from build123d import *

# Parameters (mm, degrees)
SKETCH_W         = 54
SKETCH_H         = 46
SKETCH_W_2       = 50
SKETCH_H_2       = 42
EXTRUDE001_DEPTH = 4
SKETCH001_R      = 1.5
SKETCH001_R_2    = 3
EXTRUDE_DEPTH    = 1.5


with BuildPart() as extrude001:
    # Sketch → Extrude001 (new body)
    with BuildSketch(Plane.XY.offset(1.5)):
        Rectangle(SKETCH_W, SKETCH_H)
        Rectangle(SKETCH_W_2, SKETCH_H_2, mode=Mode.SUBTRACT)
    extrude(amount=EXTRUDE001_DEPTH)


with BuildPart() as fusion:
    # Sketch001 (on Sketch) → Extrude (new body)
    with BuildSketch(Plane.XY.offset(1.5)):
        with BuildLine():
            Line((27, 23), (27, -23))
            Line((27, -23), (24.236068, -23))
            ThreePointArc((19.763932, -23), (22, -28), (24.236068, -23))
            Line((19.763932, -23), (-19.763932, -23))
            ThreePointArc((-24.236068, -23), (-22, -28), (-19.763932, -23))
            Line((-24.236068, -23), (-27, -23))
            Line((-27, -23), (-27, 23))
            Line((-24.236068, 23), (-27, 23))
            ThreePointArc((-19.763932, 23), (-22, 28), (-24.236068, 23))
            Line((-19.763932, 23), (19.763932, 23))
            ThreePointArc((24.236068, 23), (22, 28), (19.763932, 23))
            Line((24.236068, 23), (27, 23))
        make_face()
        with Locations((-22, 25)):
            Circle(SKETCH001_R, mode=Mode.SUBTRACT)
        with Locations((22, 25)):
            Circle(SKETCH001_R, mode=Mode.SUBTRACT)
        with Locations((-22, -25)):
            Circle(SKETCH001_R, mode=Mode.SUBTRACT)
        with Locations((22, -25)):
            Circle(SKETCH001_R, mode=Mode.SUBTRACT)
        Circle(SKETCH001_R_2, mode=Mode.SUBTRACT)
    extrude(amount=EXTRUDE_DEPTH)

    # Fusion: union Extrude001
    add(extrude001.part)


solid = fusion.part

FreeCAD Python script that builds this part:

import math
import FreeCAD as App
import Part
import Sketcher
Q = App.Units.Quantity

doc = App.newDocument("Part")
params = doc.addObject("Spreadsheet::Sheet", "Params")
for row, (alias, value) in enumerate([
    ("sketch1_width", "54 mm"),
    ("sketch1_width2", "50 mm"),
    ("sketch1_height", "46 mm"),
    ("sketch1_height2", "42 mm"),
    ("pad1_length", "4 mm"),
    ("sketch2_diameter", "3 mm"),
    ("sketch2_diameter2", "6 mm"),
    ("sketch2_height", "46 mm"),
    ("pad2_length", "1.5 mm"),
], start=1):
    params.set(f"A{row}", alias)
    params.set(f"B{row}", "=" + value)
    params.setAlias(f"B{row}", alias)

body = doc.addObject("PartDesign::Body", "Body")

# Sketch on XY plane
sketch1 = body.newObject("Sketcher::SketchObject", "Sketch")
sketch1.AttachmentSupport = (doc.getObject("XY_Plane"), [""])
sketch1.MapMode = "FlatFace"
sketch1.AttachmentOffset = App.Placement(App.Vector(0, 0, 1.5), App.Rotation())
sketch1.addGeometry([
    Part.LineSegment(App.Vector(-27, 23, 0), App.Vector(-27, -23, 0)),  # 0
    Part.LineSegment(App.Vector(-27, -23, 0), App.Vector(27, -23, 0)),  # 1
    Part.LineSegment(App.Vector(27, -23, 0), App.Vector(27, 23, 0)),  # 2
    Part.LineSegment(App.Vector(27, 23, 0), App.Vector(-27, 23, 0)),  # 3
    Part.LineSegment(App.Vector(25, -21, 0), App.Vector(-25, -21, 0)),  # 4
    Part.LineSegment(App.Vector(-25, -21, 0), App.Vector(-25, 21, 0)),  # 5
    Part.LineSegment(App.Vector(-25, 21, 0), App.Vector(25, 21, 0)),  # 6
    Part.LineSegment(App.Vector(25, 21, 0), App.Vector(25, -21, 0)),  # 7
], False)
sketch1.addConstraint([
    Sketcher.Constraint("Coincident", 0, 2, 1, 1),
    Sketcher.Constraint("Coincident", 1, 2, 2, 1),
    Sketcher.Constraint("Coincident", 2, 2, 3, 1),
    Sketcher.Constraint("Coincident", 3, 2, 0, 1),
    Sketcher.Constraint("Coincident", 4, 2, 5, 1),
    Sketcher.Constraint("Coincident", 5, 2, 6, 1),
    Sketcher.Constraint("Coincident", 6, 2, 7, 1),
    Sketcher.Constraint("Coincident", 7, 2, 4, 1),
    Sketcher.Constraint("Vertical", 0),
    Sketcher.Constraint("Horizontal", 1),
    Sketcher.Constraint("Vertical", 2),
    Sketcher.Constraint("Horizontal", 3),
    Sketcher.Constraint("Horizontal", 4),
    Sketcher.Constraint("Vertical", 5),
    Sketcher.Constraint("Horizontal", 6),
    Sketcher.Constraint("Vertical", 7),
    Sketcher.Constraint("Symmetric", 0, 2, 2, 2, -1, 1),
    Sketcher.Constraint("Symmetric", 4, 2, 6, 2, -1, 1),
    Sketcher.Constraint("DistanceX", 1, 1, 1, 2, Q("54 mm")),
    Sketcher.Constraint("DistanceX", 4, 2, 4, 1, Q("50 mm")),
    Sketcher.Constraint("DistanceY", 0, 2, 0, 1, Q("46 mm")),
    Sketcher.Constraint("DistanceY", 5, 1, 5, 2, Q("42 mm")),
])
sketch1.setExpression("Constraints[18]", "Params.sketch1_width")
sketch1.setExpression("Constraints[19]", "Params.sketch1_width2")
sketch1.setExpression("Constraints[20]", "Params.sketch1_height")
sketch1.setExpression("Constraints[21]", "Params.sketch1_height2")
pad1 = body.newObject("PartDesign::Pad", "Pad")
pad1.Profile = sketch1
pad1.setExpression("Length", "Params.pad1_length")
body2 = doc.addObject("PartDesign::Body", "Body001")

# Sketch on XY plane
sketch2 = body2.newObject("Sketcher::SketchObject", "Sketch001")
sketch2.AttachmentSupport = (doc.getObject("XY_Plane001"), [""])
sketch2.MapMode = "FlatFace"
sketch2.AttachmentOffset = App.Placement(App.Vector(0, 0, 1.5), App.Rotation())
sketch2.addGeometry([
    Part.LineSegment(App.Vector(27, -23, 0), App.Vector(27, 23, 0)),  # 0
    Part.LineSegment(App.Vector(27, 23, 0), App.Vector(24.2, 23, 0)),  # 1
    Part.ArcOfCircle(Part.Circle(App.Vector(22, 25, 0), App.Vector(0, 0, 1), 3), math.radians(-42), math.radians(222)),  # 2
    Part.LineSegment(App.Vector(19.8, 23, 0), App.Vector(-19.8, 23, 0)),  # 3
    Part.ArcOfCircle(Part.Circle(App.Vector(-22, 25, 0), App.Vector(0, 0, 1), 3), math.radians(-42), math.radians(222)),  # 4
    Part.LineSegment(App.Vector(-24.2, 23, 0), App.Vector(-27, 23, 0)),  # 5
    Part.LineSegment(App.Vector(-27, 23, 0), App.Vector(-27, -23, 0)),  # 6
    Part.LineSegment(App.Vector(-27, -23, 0), App.Vector(-24.2, -23, 0)),  # 7
    Part.ArcOfCircle(Part.Circle(App.Vector(-22, -25, 0), App.Vector(0, 0, 1), 3), math.radians(138), math.radians(402)),  # 8
    Part.LineSegment(App.Vector(-19.8, -23, 0), App.Vector(19.8, -23, 0)),  # 9
    Part.ArcOfCircle(Part.Circle(App.Vector(22, -25, 0), App.Vector(0, 0, 1), 3), math.radians(138), math.radians(402)),  # 10
    Part.LineSegment(App.Vector(24.2, -23, 0), App.Vector(27, -23, 0)),  # 11
    Part.Circle(App.Vector(22, -25, 0), App.Vector(0, 0, 1), 1.5),  # 12
    Part.Circle(App.Vector(-22, -25, 0), App.Vector(0, 0, 1), 1.5),  # 13
    Part.Circle(App.Vector(22, 25, 0), App.Vector(0, 0, 1), 1.5),  # 14
    Part.Circle(App.Vector(0, 0, 0), App.Vector(0, 0, 1), 3),  # 15
    Part.Circle(App.Vector(-22, 25, 0), App.Vector(0, 0, 1), 1.5),  # 16
], False)
sketch2.addConstraint([
    Sketcher.Constraint("Coincident", 0, 2, 1, 1),
    Sketcher.Constraint("Coincident", 1, 2, 2, 1),
    Sketcher.Constraint("Coincident", 2, 2, 3, 1),
    Sketcher.Constraint("Coincident", 3, 2, 4, 1),
    Sketcher.Constraint("Coincident", 4, 2, 5, 1),
    Sketcher.Constraint("Coincident", 5, 2, 6, 1),
    Sketcher.Constraint("Coincident", 6, 2, 7, 1),
    Sketcher.Constraint("Coincident", 7, 2, 8, 1),
    Sketcher.Constraint("Coincident", 8, 2, 9, 1),
    Sketcher.Constraint("Coincident", 9, 2, 10, 1),
    Sketcher.Constraint("Coincident", 10, 2, 11, 1),
    Sketcher.Constraint("Coincident", 11, 2, 0, 1),
    Sketcher.Constraint("Vertical", 0),
    Sketcher.Constraint("Horizontal", 1),
    Sketcher.Constraint("Horizontal", 3),
    Sketcher.Constraint("Horizontal", 5),
    Sketcher.Constraint("Vertical", 6),
    Sketcher.Constraint("Horizontal", 7),
    Sketcher.Constraint("Horizontal", 9),
    Sketcher.Constraint("Horizontal", 11),
    Sketcher.Constraint("Coincident", 15, 3, -1, 1),
    Sketcher.Constraint("Coincident", 12, 3, 10, 3),
    Sketcher.Constraint("Coincident", 13, 3, 8, 3),
    Sketcher.Constraint("Coincident", 14, 3, 2, 3),
    Sketcher.Constraint("Coincident", 16, 3, 4, 3),
    Sketcher.Constraint("Equal", 2, 4),
    Sketcher.Constraint("Equal", 4, 8),
    Sketcher.Constraint("Equal", 8, 10),
    Sketcher.Constraint("Equal", 12, 13),
    Sketcher.Constraint("Equal", 13, 14),
    Sketcher.Constraint("Equal", 10, 15),
    Sketcher.Constraint("Equal", 14, 16),
    Sketcher.Constraint("Symmetric", 2, 3, 8, 3, -1, 1),
    Sketcher.Constraint("Symmetric", 4, 3, 10, 3, -1, 1),
    Sketcher.Constraint("Symmetric", 0, 2, 6, 2, -1, 1),
    Sketcher.Constraint("Symmetric", 2, 3, 4, 3, -2),
    Sketcher.Constraint("Horizontal", 1, 2, 2, 2),
    Sketcher.Constraint("Horizontal", 3, 2, 4, 2),
    Sketcher.Constraint("Horizontal", 7, 2, 8, 2),
    Sketcher.Constraint("Horizontal", 9, 2, 10, 2),
    Sketcher.Constraint("Diameter", 12, Q("3 mm")),
    Sketcher.Constraint("Diameter", 15, Q("6 mm")),
    Sketcher.Constraint("DistanceY", 0, 1, 0, 2, Q("46 mm")),
    Sketcher.Constraint("DistanceX", -1, 1, 2, 3, Q("22 mm")),
    Sketcher.Constraint("DistanceY", -1, 1, 2, 3, Q("25 mm")),
    Sketcher.Constraint("DistanceX", -1, 1, 0, 2, Q("27 mm")),
])
sketch2.setExpression("Constraints[40]", "Params.sketch2_diameter")
sketch2.setExpression("Constraints[41]", "Params.sketch2_diameter2")
sketch2.setExpression("Constraints[42]", "Params.sketch2_height")
pad2 = body2.newObject("PartDesign::Pad", "Pad001")
pad2.Profile = sketch2
pad2.setExpression("Length", "Params.pad2_length")
doc.recompute()

boolean = body2.newObject("PartDesign::Boolean", "Boolean")
boolean.Type = "Fuse"
boolean.addObjects([body])

doc.recompute()
